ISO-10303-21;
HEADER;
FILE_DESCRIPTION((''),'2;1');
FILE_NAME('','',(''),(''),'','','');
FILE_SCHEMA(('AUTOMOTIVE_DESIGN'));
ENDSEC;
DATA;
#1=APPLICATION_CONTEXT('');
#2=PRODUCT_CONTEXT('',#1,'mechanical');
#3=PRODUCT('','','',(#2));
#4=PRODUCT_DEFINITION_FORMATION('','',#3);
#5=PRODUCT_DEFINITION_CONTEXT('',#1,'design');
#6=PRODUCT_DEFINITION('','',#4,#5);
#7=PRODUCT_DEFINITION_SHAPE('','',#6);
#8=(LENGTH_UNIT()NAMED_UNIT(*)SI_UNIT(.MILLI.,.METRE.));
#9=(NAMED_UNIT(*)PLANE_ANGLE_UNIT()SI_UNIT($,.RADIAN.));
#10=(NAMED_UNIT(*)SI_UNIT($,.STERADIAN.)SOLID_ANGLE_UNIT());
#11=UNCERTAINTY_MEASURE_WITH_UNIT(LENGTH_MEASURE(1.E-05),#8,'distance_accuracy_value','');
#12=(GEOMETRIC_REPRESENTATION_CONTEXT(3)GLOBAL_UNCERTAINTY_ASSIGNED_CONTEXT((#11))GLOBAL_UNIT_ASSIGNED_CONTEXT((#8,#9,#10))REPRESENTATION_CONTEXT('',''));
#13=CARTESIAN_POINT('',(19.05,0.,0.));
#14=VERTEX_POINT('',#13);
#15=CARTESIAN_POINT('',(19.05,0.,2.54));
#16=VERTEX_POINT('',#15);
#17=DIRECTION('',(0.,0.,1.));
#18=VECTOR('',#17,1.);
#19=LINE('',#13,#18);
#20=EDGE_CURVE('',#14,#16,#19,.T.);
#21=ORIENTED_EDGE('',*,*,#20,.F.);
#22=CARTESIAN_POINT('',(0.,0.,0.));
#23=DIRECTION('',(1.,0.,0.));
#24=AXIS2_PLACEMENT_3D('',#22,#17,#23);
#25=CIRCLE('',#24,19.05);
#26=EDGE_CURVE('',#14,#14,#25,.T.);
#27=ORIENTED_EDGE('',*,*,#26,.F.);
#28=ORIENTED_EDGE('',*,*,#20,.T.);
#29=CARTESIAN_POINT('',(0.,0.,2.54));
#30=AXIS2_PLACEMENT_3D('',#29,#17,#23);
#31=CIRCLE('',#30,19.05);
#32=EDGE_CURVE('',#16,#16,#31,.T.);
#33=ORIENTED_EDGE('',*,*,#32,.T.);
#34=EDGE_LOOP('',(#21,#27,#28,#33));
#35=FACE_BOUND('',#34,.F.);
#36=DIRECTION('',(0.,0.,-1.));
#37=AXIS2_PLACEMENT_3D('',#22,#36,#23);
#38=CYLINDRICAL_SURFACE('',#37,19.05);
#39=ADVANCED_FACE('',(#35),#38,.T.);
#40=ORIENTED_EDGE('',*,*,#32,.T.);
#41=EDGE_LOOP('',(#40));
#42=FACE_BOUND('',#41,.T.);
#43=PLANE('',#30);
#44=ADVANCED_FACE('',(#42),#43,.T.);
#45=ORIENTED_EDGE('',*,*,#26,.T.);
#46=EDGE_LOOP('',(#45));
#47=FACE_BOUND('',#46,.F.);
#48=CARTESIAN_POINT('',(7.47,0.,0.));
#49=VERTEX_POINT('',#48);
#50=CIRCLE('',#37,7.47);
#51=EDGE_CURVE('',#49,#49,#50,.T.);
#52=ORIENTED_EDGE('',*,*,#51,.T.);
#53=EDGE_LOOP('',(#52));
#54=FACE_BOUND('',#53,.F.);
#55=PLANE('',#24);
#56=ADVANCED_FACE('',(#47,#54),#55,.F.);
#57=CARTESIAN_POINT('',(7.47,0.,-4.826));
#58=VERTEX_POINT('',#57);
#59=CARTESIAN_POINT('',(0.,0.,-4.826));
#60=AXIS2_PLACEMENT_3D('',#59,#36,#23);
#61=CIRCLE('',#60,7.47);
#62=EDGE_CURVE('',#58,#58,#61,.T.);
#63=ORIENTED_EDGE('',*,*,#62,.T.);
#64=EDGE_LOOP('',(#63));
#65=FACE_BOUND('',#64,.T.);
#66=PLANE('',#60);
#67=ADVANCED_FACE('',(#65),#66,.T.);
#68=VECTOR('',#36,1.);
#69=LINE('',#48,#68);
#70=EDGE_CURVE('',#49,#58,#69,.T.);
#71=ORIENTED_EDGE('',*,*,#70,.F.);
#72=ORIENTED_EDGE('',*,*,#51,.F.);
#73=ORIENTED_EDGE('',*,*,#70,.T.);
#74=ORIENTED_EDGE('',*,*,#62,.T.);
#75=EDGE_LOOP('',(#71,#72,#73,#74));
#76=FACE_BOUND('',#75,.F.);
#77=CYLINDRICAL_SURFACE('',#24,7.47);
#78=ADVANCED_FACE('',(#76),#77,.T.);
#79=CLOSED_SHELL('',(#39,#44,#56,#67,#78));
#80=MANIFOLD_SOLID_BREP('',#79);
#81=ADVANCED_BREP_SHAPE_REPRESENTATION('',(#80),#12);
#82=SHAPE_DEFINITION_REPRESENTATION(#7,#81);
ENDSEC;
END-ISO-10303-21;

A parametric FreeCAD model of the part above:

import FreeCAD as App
import Part
import Sketcher
Q = App.Units.Quantity

doc = App.newDocument("Part")
body = doc.addObject("PartDesign::Body", "Body")

sketch1 = body.newObject("Sketcher::SketchObject", "Sketch")
sketch1.AttachmentSupport = (doc.getObject("XY_Plane"), [""])
sketch1.MapMode = "FlatFace"
sketch1.addGeometry(Part.Circle(App.Vector(0, 0, 0), App.Vector(0, 0, 1), 2.2), False)
sketch1.addConstraint([
    Sketcher.Constraint("Coincident", 0, 3, -1, 1),
    Sketcher.Constraint("Diameter", 0, 4.5),
])
pad1 = body.newObject("PartDesign::Pad", "Pad")
pad1.Profile = sketch1
pad1.Length = Q("0.1 in")

sketch2 = body.newObject("Sketcher::SketchObject", "Sketch001")
sketch2.AttachmentSupport = (doc.getObject("XY_Plane"), [""])
sketch2.MapMode = "FlatFace"
sketch2.addGeometry([
    Part.Circle(App.Vector(0, 0, 0), App.Vector(0, 0, 1), 19.1),
    Part.Circle(App.Vector(0, 0, 0), App.Vector(0, 0, 1), 2.2),
], False)
sketch2.addConstraint([
    Sketcher.Constraint("Coincident", 0, 3, -1, 1),
    Sketcher.Constraint("Coincident", 1, 3, -1, 1),
    Sketcher.Constraint("Diameter", 0, Q("1.5 in")),
    Sketcher.Constraint("Diameter", 1, 4.5),
])
pad2 = body.newObject("PartDesign::Pad", "Pad001")
pad2.Profile = sketch2
pad2.Length = Q("0.1 in")

sketch3 = body.newObject("Sketcher::SketchObject", "Sketch002")
sketch3.AttachmentSupport = (doc.getObject("XY_Plane"), [""])
sketch3.MapMode = "FlatFace"
sketch3.addGeometry(Part.Circle(App.Vector(0, 0, 0), App.Vector(0, 0, 1), 7), False)
sketch3.addConstraint([
    Sketcher.Constraint("Coincident", 0, 3, -1, 1),
    Sketcher.Constraint("Diameter", 0, 14.94),
])
pad3 = body.newObject("PartDesign::Pad", "Pad002")
pad3.Profile = sketch3
pad3.Length = Q("0.19 in")
pad3.Reversed = True

doc.recompute()
